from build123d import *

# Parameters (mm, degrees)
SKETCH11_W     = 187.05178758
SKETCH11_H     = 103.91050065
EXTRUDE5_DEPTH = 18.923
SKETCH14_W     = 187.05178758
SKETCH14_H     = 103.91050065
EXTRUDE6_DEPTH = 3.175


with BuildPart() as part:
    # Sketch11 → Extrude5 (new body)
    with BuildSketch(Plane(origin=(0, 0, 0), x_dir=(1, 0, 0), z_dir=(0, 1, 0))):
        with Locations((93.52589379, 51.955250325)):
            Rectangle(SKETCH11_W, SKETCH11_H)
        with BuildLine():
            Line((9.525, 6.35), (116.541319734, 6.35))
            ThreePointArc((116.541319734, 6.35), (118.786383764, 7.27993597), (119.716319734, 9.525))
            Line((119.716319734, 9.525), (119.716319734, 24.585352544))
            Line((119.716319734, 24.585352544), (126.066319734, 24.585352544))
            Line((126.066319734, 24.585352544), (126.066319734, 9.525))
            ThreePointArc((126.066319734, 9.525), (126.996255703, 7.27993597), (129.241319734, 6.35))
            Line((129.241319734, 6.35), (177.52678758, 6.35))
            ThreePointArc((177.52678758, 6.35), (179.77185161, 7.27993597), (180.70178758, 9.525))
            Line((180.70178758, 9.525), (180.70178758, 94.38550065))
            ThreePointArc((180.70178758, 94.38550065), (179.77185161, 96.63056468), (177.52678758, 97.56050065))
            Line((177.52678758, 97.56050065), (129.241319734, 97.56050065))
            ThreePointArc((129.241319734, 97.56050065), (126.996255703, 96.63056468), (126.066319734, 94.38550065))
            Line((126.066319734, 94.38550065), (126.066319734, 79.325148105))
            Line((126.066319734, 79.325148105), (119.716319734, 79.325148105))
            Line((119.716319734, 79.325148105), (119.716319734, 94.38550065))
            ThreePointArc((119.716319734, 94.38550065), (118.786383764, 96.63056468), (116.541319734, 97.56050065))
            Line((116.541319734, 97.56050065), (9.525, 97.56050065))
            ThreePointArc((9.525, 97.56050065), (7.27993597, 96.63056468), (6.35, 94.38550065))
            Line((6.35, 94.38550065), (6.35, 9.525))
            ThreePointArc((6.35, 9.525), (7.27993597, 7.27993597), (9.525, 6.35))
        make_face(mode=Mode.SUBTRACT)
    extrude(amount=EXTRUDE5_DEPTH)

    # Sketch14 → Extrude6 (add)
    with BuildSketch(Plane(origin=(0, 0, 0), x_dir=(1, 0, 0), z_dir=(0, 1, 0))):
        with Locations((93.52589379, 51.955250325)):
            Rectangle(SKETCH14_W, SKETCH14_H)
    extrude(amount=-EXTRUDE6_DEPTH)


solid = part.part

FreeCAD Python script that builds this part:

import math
import FreeCAD as App
import Part
import Sketcher

V = App.Vector
Q = App.Units.Quantity


def add_polygon(sketch, points):
    """Adds a closed chain of lines whose ends are joined by coincident constraints."""
    first, n = sketch.GeometryCount, len(points)
    for a, b in zip(points, points[1:] + points[:1]):
        sketch.addGeometry(Part.LineSegment(App.Vector(*a, 0), App.Vector(*b, 0)), False)
    for i in range(n):
        sketch.addConstraint(Sketcher.Constraint("Coincident", first + i, 2, first + (i + 1) % n, 1))

doc = App.newDocument("Part")
body = doc.addObject("PartDesign::Body", "Body")

sketch1 = body.newObject("Sketcher::SketchObject", "Sketch")
sketch1.AttachmentSupport = (doc.getObject("XZ_Plane"), [""])
sketch1.MapMode = "FlatFace"
add_polygon(sketch1, [(0, -103.910501), (0, 0), (187.051788, 0), (187.051788, -103.910501)])
sketch1.addGeometry(Part.LineSegment(V(116.54132, -6.35, 0), V(9.525, -6.35, 0)), False)
sketch1.addGeometry(Part.ArcOfCircle(Part.Circle(V(9.525, -9.525, 0), V(0, 0, 1), 3.175), math.radians(90), math.radians(180)), False)
sketch1.addGeometry(Part.LineSegment(V(6.35, -9.525, 0), V(6.35, -94.385501, 0)), False)
sketch1.addGeometry(Part.ArcOfCircle(Part.Circle(V(9.525, -94.385501, 0), V(0, 0, 1), 3.175), math.radians(-180), math.radians(-90)), False)
sketch1.addGeometry(Part.LineSegment(V(9.525, -97.560501, 0), V(116.54132, -97.560501, 0)), False)
sketch1.addGeometry(Part.ArcOfCircle(Part.Circle(V(116.54132, -94.385501, 0), V(0, 0, 1), 3.175), math.radians(-90), math.radians(0)), False)
sketch1.addGeometry(Part.LineSegment(V(119.71632, -94.385501, 0), V(119.71632, -79.325148, 0)), False)
sketch1.addGeometry(Part.LineSegment(V(119.71632, -79.325148, 0), V(126.06632, -79.325148, 0)), False)
sketch1.addGeometry(Part.LineSegment(V(126.06632, -79.325148, 0), V(126.06632, -94.385501, 0)), False)
sketch1.addGeometry(Part.ArcOfCircle(Part.Circle(V(129.24132, -94.385501, 0), V(0, 0, 1), 3.175), math.radians(180), math.radians(270)), False)
sketch1.addGeometry(Part.LineSegment(V(129.24132, -97.560501, 0), V(177.526788, -97.560501, 0)), False)
sketch1.addGeometry(Part.ArcOfCircle(Part.Circle(V(177.526788, -94.385501, 0), V(0, 0, 1), 3.175), math.radians(-90), math.radians(0)), False)
sketch1.addGeometry(Part.LineSegment(V(180.701788, -94.385501, 0), V(180.701788, -9.525, 0)), False)
sketch1.addGeometry(Part.ArcOfCircle(Part.Circle(V(177.526788, -9.525, 0), V(0, 0, 1), 3.175), math.radians(0), math.radians(90)), False)
sketch1.addGeometry(Part.LineSegment(V(177.526788, -6.35, 0), V(129.24132, -6.35, 0)), False)
sketch1.addGeometry(Part.ArcOfCircle(Part.Circle(V(129.24132, -9.525, 0), V(0, 0, 1), 3.175), math.radians(90), math.radians(180)), False)
sketch1.addGeometry(Part.LineSegment(V(126.06632, -9.525, 0), V(126.06632, -24.585353, 0)), False)
sketch1.addGeometry(Part.LineSegment(V(126.06632, -24.585353, 0), V(119.71632, -24.585353, 0)), False)
sketch1.addGeometry(Part.LineSegment(V(119.71632, -24.585353, 0), V(119.71632, -9.525, 0)), False)
sketch1.addGeometry(Part.ArcOfCircle(Part.Circle(V(116.54132, -9.525, 0), V(0, 0, 1), 3.175), math.radians(0), math.radians(90)), False)
sketch1.addConstraint([
    Sketcher.Constraint("Tangent", 4, 2, 5, 1),
    Sketcher.Constraint("Tangent", 5, 2, 6, 1),
    Sketcher.Constraint("Tangent", 6, 2, 7, 1),
    Sketcher.Constraint("Tangent", 7, 2, 8, 1),
    Sketcher.Constraint("Tangent", 8, 2, 9, 1),
    Sketcher.Constraint("Tangent", 9, 2, 10, 1),
    Sketcher.Constraint("Coincident", 10, 2, 11, 1),
    Sketcher.Constraint("Coincident", 11, 2, 12, 1),
    Sketcher.Constraint("Tangent", 12, 2, 13, 1),
    Sketcher.Constraint("Tangent", 13, 2, 14, 1),
    Sketcher.Constraint("Tangent", 14, 2, 15, 1),
    Sketcher.Constraint("Tangent", 15, 2, 16, 1),
    Sketcher.Constraint("Tangent", 16, 2, 17, 1),
    Sketcher.Constraint("Tangent", 17, 2, 18, 1),
    Sketcher.Constraint("Tangent", 18, 2, 19, 1),
    Sketcher.Constraint("Tangent", 19, 2, 20, 1),
    Sketcher.Constraint("Coincident", 20, 2, 21, 1),
    Sketcher.Constraint("Coincident", 21, 2, 22, 1),
    Sketcher.Constraint("Tangent", 22, 2, 23, 1),
    Sketcher.Constraint("Tangent", 23, 2, 4, 1),
    Sketcher.Constraint("Vertical", 0),
    Sketcher.Constraint("Horizontal", 1),
    Sketcher.Constraint("Vertical", 2),
    Sketcher.Constraint("Horizontal", 3),
    Sketcher.Constraint("Horizontal", 4),
    Sketcher.Constraint("Vertical", 6),
    Sketcher.Constraint("Horizontal", 8),
    Sketcher.Constraint("Vertical", 10),
    Sketcher.Constraint("Horizontal", 11),
    Sketcher.Constraint("Vertical", 12),
    Sketcher.Constraint("Horizontal", 14),
    Sketcher.Constraint("Vertical", 16),
    Sketcher.Constraint("Horizontal", 18),
    Sketcher.Constraint("Vertical", 20),
    Sketcher.Constraint("Horizontal", 21),
    Sketcher.Constraint("Vertical", 22),
    Sketcher.Constraint("Coincident", 0, 2, -1, 1),
    Sketcher.Constraint("Equal", 5, 7),
    Sketcher.Constraint("Equal", 7, 9),
    Sketcher.Constraint("Equal", 9, 13),
    Sketcher.Constraint("Equal", 13, 15),
    Sketcher.Constraint("Equal", 15, 17),
    Sketcher.Constraint("Equal", 17, 19),
    Sketcher.Constraint("Equal", 19, 23),
    Sketcher.Constraint("Horizontal", 9, 3, 13, 3),
    Sketcher.Constraint("Horizontal", 5, 3, 17, 3),
    Sketcher.Constraint("Vertical", 13, 3, 19, 3),
    Sketcher.Constraint("Vertical", 9, 3, 23, 3),
    Sketcher.Constraint("Equal", 12, 20),
    Sketcher.Constraint("Radius", 5, Q("0.125 in")),
    Sketcher.Constraint("DistanceX", 11, 1, 11, 2, Q("0.25 in")),
    Sketcher.Constraint("DistanceY", 4, 2, -1, 1, Q("0.25 in")),
    Sketcher.Constraint("DistanceX", -1, 1, 5, 2, Q("0.25 in")),
    Sketcher.Constraint("DistanceY", 3, 2, 7, 2, Q("0.25 in")),
    Sketcher.Constraint("DistanceX", 15, 2, 2, 2, Q("0.25 in")),
    Sketcher.Constraint("DistanceY", 0, 1, 0, 2, 103.910501),
    Sketcher.Constraint("DistanceX", 4, 2, 4, 1, 107.01632),
    Sketcher.Constraint("DistanceX", 1, 1, 1, 2, 187.051788),
    Sketcher.Constraint("DistanceY", 10, 1, 10, 2, 15.060353),
])
pad1 = body.newObject("PartDesign::Pad", "Pad")
pad1.Profile = sketch1
pad1.Length = Q("0.745 in")
pad1.Reversed = True

sketch2 = body.newObject("Sketcher::SketchObject", "Sketch001")
sketch2.AttachmentSupport = (doc.getObject("XZ_Plane"), [""])
sketch2.MapMode = "FlatFace"
add_polygon(sketch2, [(0, -103.910501), (0, 0), (187.051788, 0), (187.051788, -103.910501)])
sketch2.addConstraint([
    Sketcher.Constraint("Vertical", 0),
    Sketcher.Constraint("Horizontal", 1),
    Sketcher.Constraint("Vertical", 2),
    Sketcher.Constraint("Horizontal", 3),
    Sketcher.Constraint("Coincident", 0, 2, -1, 1),
    Sketcher.Constraint("DistanceY", 0, 1, 0, 2, 103.910501),
    Sketcher.Constraint("DistanceX", 1, 1, 1, 2, 187.051788),
])
pad2 = body.newObject("PartDesign::Pad", "Pad001")
pad2.Profile = sketch2
pad2.Length = Q("0.125 in")

doc.recompute()
